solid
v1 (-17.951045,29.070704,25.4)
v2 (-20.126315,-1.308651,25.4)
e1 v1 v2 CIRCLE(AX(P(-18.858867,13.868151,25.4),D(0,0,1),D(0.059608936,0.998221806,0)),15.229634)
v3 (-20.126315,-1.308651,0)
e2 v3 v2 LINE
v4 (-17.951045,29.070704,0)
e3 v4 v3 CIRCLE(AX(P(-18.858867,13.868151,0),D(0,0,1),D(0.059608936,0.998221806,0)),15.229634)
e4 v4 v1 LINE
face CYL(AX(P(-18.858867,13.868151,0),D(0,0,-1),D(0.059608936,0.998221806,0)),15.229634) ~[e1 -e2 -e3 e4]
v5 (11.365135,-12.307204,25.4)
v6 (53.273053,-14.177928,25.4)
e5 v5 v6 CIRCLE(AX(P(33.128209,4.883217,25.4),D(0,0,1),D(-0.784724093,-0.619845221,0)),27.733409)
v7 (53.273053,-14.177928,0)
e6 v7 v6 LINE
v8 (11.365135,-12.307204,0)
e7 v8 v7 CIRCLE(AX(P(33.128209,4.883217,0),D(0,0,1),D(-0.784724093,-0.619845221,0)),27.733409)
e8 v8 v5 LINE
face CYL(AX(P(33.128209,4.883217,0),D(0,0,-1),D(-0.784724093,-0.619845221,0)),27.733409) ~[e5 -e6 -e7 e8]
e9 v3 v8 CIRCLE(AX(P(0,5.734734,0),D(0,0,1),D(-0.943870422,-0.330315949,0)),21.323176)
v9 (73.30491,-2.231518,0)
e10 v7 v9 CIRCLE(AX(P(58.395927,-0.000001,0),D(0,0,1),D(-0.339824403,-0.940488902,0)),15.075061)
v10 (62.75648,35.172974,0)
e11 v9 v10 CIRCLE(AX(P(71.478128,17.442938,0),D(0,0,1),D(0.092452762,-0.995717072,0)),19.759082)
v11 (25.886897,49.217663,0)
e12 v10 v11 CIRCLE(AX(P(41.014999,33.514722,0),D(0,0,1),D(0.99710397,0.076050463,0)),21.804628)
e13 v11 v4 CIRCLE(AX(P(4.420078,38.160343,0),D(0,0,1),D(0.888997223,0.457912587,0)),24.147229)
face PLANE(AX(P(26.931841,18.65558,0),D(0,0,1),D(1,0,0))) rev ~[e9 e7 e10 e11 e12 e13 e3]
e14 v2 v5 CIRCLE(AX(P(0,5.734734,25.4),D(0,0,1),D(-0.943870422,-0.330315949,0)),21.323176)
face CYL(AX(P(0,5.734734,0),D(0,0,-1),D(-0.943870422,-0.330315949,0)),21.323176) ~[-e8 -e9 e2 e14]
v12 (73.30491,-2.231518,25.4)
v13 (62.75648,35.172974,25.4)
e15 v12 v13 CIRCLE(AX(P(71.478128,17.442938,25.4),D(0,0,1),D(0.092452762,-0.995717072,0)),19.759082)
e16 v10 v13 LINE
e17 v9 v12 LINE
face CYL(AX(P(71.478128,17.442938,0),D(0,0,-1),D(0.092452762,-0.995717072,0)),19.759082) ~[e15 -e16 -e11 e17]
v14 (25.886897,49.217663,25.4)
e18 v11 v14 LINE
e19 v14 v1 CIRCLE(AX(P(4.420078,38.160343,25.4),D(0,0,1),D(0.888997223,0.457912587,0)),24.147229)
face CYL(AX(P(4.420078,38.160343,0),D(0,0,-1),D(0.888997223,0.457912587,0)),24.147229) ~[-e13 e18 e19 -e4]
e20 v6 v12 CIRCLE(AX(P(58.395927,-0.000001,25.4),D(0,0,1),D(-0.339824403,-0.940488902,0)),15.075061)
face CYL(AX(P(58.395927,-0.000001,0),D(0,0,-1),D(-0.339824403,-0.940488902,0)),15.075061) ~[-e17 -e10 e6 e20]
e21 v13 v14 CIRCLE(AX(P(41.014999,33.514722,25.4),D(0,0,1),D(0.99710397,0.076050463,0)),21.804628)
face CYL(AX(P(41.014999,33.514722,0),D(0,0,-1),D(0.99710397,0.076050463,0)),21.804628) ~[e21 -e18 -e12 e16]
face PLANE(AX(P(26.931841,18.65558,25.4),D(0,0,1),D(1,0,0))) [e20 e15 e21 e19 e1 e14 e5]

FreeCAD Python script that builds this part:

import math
import FreeCAD as App
import Part
import Sketcher

V = App.Vector
Q = App.Units.Quantity

doc = App.newDocument("Part")
body = doc.addObject("PartDesign::Body", "Body")

# Sketch on XY plane
sketch1 = body.newObject("Sketcher::SketchObject", "Sketch")
sketch1.AttachmentSupport = (doc.getObject("XY_Plane"), [""])
sketch1.MapMode = "FlatFace"
sketch1.addGeometry([
    Part.ArcOfCircle(Part.Circle(V(4, 38, 0), V(0, 0, 1), 24), math.radians(27), math.radians(202)),  # 0
    Part.ArcOfCircle(Part.Circle(V(-19, 14, 0), V(0, 0, 1), 15), math.radians(87), math.radians(265)),  # 1
    Part.ArcOfCircle(Part.Circle(V(0, 6, 0), V(0, 0, 1), 21), math.radians(-161), math.radians(-58)),  # 2
    Part.ArcOfCircle(Part.Circle(V(33, 5, 0), V(0, 0, 1), 28), math.radians(-142), math.radians(-43)),  # 3
    Part.ArcOfCircle(Part.Circle(V(58, 0, 0), V(0, 0, 1), 15), math.radians(-110), math.radians(-9)),  # 4
    Part.ArcOfCircle(Part.Circle(V(71, 17, 0), V(0, 0, 1), 20), math.radians(-85), math.radians(116)),  # 5
    Part.ArcOfCircle(Part.Circle(V(41, 34, 0), V(0, 0, 1), 22), math.radians(4), math.radians(134)),  # 6
], False)
sketch1.addConstraint([
    Sketcher.Constraint("Coincident", 0, 2, 1, 1),
    Sketcher.Constraint("Coincident", 1, 2, 2, 1),
    Sketcher.Constraint("Coincident", 2, 2, 3, 1),
    Sketcher.Constraint("Coincident", 3, 2, 4, 1),
    Sketcher.Constraint("Coincident", 4, 2, 5, 1),
    Sketcher.Constraint("Coincident", 5, 2, 6, 1),
    Sketcher.Constraint("Coincident", 6, 2, 0, 1),
    Sketcher.Constraint("PointOnObject", 2, 3, -2),
    Sketcher.Constraint("PointOnObject", 4, 3, -1),
    Sketcher.Constraint("Radius", 0, Q("24.147229 mm")),
    Sketcher.Constraint("Radius", 3, Q("27.733409 mm")),
    Sketcher.Constraint("Radius", 4, Q("15.075061 mm")),
    Sketcher.Constraint("Radius", 6, Q("21.804628 mm")),
    Sketcher.Constraint("Radius", 1, Q("15.229634 mm")),
    Sketcher.Constraint("Radius", 2, Q("21.323176 mm")),
    Sketcher.Constraint("Radius", 5, Q("19.759082 mm")),
    Sketcher.Constraint("DistanceX", -1, 1, 6, 3, Q("41.014999 mm")),
    Sketcher.Constraint("DistanceX", 4, 3, 5, 3, Q("13.082202 mm")),
    Sketcher.Constraint("DistanceX", 3, 3, 4, 2, Q("40.176701 mm")),
    Sketcher.Constraint("DistanceX", 6, 2, 6, 3, Q("15.128102 mm")),
    Sketcher.Constraint("DistanceY", -1, 1, 1, 3, Q("13.868151 mm")),
    Sketcher.Constraint("DistanceX", -1, 1, 3, 3, Q("33.128209 mm")),
    Sketcher.Constraint("DistanceX", -1, 1, 5, 3, Q("71.478128 mm")),
    Sketcher.Constraint("DistanceY", -1, 1, 6, 3, Q("33.514722 mm")),
    Sketcher.Constraint("DistanceY", 1, 2, -1, 1, Q("1.308651 mm")),
    Sketcher.Constraint("DistanceY", 1, 3, 0, 3, Q("24.292192 mm")),
    Sketcher.Constraint("DistanceY", 2, 3, 0, 3, Q("32.425609 mm")),
    Sketcher.Constraint("DistanceY", 3, 3, 5, 3, Q("12.559721 mm")),
])
pad1 = body.newObject("PartDesign::Pad", "Pad")
pad1.Profile = sketch1
pad1.Length = Q("1 in")

doc.recompute()
